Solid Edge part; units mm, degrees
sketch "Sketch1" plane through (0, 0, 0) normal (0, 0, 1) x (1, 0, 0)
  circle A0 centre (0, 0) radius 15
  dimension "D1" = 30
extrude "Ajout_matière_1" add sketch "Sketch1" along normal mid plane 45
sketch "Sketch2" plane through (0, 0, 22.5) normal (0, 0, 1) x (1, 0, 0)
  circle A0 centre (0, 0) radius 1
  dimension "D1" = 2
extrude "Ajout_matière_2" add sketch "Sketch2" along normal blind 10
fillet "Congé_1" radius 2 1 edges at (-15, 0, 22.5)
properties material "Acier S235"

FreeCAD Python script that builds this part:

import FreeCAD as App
import Part
import Sketcher
Q = App.Units.Quantity


def edges_at(feature, points):
    """Names of the edges that pass closest to the given points."""
    edges = feature.Shape.Edges
    near = lambda p: min(range(len(edges)), key=lambda i: edges[i].distToShape(Part.Vertex(*p))[0])
    return sorted({f"Edge{near(p) + 1}" for p in points})

doc = App.newDocument("Part")
body = doc.addObject("PartDesign::Body", "Body")

# Sketch on XY plane
sketch1 = body.newObject("Sketcher::SketchObject", "Sketch")
sketch1.AttachmentSupport = (doc.getObject("XY_Plane"), [""])
sketch1.MapMode = "FlatFace"
sketch1.addGeometry(Part.Circle(App.Vector(0, 0, 0), App.Vector(0, 0, 1), 15), False)
sketch1.addConstraint([
    Sketcher.Constraint("Coincident", 0, 3, -1, 1),
    Sketcher.Constraint("Diameter", 0, Q("30 mm")),
])
pad1 = body.newObject("PartDesign::Pad", "Pad")
pad1.Profile = sketch1
pad1.Length = 45
pad1.Midplane = True

# Sketch on XY plane
sketch2 = body.newObject("Sketcher::SketchObject", "Sketch001")
sketch2.AttachmentSupport = (doc.getObject("XY_Plane"), [""])
sketch2.MapMode = "FlatFace"
sketch2.AttachmentOffset = App.Placement(App.Vector(0, 0, 22.5), App.Rotation())
sketch2.addGeometry(Part.Circle(App.Vector(0, 0, 0), App.Vector(0, 0, 1), 1), False)
sketch2.addConstraint([
    Sketcher.Constraint("Coincident", 0, 3, -1, 1),
    Sketcher.Constraint("Diameter", 0, Q("2 mm")),
])
pad2 = body.newObject("PartDesign::Pad", "Pad001")
pad2.Profile = sketch2
pad2.Length = 10
doc.recompute()

fillet = body.newObject("PartDesign::Fillet", "Fillet")
fillet.Base = (pad2, edges_at(pad2, [(-15, 0, 22.5)]))
fillet.Radius = 2

doc.recompute()
